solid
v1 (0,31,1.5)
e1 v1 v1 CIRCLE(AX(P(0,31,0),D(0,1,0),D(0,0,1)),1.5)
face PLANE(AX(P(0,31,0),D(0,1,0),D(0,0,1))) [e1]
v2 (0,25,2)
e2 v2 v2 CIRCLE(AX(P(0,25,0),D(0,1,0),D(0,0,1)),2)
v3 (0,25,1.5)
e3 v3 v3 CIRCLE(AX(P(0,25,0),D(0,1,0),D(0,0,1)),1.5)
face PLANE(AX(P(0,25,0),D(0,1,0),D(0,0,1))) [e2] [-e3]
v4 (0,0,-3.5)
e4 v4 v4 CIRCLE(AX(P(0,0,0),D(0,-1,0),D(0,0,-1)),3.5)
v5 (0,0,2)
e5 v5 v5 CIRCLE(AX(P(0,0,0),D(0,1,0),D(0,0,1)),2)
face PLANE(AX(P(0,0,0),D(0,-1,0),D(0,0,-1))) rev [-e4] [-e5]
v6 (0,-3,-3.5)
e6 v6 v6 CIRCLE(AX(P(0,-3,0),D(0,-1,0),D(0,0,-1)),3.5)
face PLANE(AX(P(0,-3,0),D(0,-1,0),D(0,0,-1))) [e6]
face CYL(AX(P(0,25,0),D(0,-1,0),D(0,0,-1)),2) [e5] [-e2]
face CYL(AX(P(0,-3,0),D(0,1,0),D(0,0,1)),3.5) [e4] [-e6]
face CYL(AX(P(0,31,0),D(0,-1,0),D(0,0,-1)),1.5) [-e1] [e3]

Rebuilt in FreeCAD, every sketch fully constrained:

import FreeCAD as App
import Part
import Sketcher

V = App.Vector
Q = App.Units.Quantity

doc = App.newDocument("Part")
params = doc.addObject("Spreadsheet::Sheet", "Params")
for row, (alias, value) in enumerate([
    ("sketch1_diameter", "4 mm"),
    ("pad1_length", "25 mm"),
    ("sketch2_diameter", "3 mm"),
    ("pad2_length", "6 mm"),
    ("sketch3_diameter", "7 mm"),
    ("pad3_length", "3 mm"),
], start=1):
    params.set(f"A{row}", alias)
    params.set(f"B{row}", "=" + value)
    params.setAlias(f"B{row}", alias)

body = doc.addObject("PartDesign::Body", "Body")

# Sketch on XZ plane
sketch1 = body.newObject("Sketcher::SketchObject", "Sketch")
sketch1.AttachmentSupport = (doc.getObject("XZ_Plane"), [""])
sketch1.MapMode = "FlatFace"
sketch1.addGeometry(Part.Circle(V(0, 0, 0), V(0, 0, 1), 2), False)
sketch1.addConstraint(Sketcher.Constraint("Coincident", 0, 3, -1, 1))
sketch1.addConstraint(Sketcher.Constraint("Diameter", 0, Q("4 mm")))
sketch1.setExpression("Constraints[1]", "Params.sketch1_diameter")
pad1 = body.newObject("PartDesign::Pad", "Pad")
pad1.Profile = sketch1
pad1.setExpression("Length", "Params.pad1_length")
pad1.Reversed = True

# Sketch on XZ plane
sketch2 = body.newObject("Sketcher::SketchObject", "Sketch001")
sketch2.AttachmentSupport = (doc.getObject("XZ_Plane"), [""])
sketch2.MapMode = "FlatFace"
sketch2.AttachmentOffset = App.Placement(V(0, 0, -25), App.Rotation())
sketch2.addGeometry(Part.Circle(V(0, 0, 0), V(0, 0, 1), 1.5), False)
sketch2.addConstraint(Sketcher.Constraint("Coincident", 0, 3, -1, 1))
sketch2.addConstraint(Sketcher.Constraint("Diameter", 0, Q("3 mm")))
sketch2.setExpression("Constraints[1]", "Params.sketch2_diameter")
pad2 = body.newObject("PartDesign::Pad", "Pad001")
pad2.Profile = sketch2
pad2.setExpression("Length", "Params.pad2_length")
pad2.Reversed = True

# Sketch on XZ plane
sketch3 = body.newObject("Sketcher::SketchObject", "Sketch002")
sketch3.AttachmentSupport = (doc.getObject("XZ_Plane"), [""])
sketch3.MapMode = "FlatFace"
sketch3.addGeometry(Part.Circle(V(0, 0, 0), V(0, 0, 1), 3.5), False)
sketch3.addConstraint(Sketcher.Constraint("Coincident", 0, 3, -1, 1))
sketch3.addConstraint(Sketcher.Constraint("Diameter", 0, Q("7 mm")))
sketch3.setExpression("Constraints[1]", "Params.sketch3_diameter")
pad3 = body.newObject("PartDesign::Pad", "Pad002")
pad3.Profile = sketch3
pad3.setExpression("Length", "Params.pad3_length")

doc.recompute()
